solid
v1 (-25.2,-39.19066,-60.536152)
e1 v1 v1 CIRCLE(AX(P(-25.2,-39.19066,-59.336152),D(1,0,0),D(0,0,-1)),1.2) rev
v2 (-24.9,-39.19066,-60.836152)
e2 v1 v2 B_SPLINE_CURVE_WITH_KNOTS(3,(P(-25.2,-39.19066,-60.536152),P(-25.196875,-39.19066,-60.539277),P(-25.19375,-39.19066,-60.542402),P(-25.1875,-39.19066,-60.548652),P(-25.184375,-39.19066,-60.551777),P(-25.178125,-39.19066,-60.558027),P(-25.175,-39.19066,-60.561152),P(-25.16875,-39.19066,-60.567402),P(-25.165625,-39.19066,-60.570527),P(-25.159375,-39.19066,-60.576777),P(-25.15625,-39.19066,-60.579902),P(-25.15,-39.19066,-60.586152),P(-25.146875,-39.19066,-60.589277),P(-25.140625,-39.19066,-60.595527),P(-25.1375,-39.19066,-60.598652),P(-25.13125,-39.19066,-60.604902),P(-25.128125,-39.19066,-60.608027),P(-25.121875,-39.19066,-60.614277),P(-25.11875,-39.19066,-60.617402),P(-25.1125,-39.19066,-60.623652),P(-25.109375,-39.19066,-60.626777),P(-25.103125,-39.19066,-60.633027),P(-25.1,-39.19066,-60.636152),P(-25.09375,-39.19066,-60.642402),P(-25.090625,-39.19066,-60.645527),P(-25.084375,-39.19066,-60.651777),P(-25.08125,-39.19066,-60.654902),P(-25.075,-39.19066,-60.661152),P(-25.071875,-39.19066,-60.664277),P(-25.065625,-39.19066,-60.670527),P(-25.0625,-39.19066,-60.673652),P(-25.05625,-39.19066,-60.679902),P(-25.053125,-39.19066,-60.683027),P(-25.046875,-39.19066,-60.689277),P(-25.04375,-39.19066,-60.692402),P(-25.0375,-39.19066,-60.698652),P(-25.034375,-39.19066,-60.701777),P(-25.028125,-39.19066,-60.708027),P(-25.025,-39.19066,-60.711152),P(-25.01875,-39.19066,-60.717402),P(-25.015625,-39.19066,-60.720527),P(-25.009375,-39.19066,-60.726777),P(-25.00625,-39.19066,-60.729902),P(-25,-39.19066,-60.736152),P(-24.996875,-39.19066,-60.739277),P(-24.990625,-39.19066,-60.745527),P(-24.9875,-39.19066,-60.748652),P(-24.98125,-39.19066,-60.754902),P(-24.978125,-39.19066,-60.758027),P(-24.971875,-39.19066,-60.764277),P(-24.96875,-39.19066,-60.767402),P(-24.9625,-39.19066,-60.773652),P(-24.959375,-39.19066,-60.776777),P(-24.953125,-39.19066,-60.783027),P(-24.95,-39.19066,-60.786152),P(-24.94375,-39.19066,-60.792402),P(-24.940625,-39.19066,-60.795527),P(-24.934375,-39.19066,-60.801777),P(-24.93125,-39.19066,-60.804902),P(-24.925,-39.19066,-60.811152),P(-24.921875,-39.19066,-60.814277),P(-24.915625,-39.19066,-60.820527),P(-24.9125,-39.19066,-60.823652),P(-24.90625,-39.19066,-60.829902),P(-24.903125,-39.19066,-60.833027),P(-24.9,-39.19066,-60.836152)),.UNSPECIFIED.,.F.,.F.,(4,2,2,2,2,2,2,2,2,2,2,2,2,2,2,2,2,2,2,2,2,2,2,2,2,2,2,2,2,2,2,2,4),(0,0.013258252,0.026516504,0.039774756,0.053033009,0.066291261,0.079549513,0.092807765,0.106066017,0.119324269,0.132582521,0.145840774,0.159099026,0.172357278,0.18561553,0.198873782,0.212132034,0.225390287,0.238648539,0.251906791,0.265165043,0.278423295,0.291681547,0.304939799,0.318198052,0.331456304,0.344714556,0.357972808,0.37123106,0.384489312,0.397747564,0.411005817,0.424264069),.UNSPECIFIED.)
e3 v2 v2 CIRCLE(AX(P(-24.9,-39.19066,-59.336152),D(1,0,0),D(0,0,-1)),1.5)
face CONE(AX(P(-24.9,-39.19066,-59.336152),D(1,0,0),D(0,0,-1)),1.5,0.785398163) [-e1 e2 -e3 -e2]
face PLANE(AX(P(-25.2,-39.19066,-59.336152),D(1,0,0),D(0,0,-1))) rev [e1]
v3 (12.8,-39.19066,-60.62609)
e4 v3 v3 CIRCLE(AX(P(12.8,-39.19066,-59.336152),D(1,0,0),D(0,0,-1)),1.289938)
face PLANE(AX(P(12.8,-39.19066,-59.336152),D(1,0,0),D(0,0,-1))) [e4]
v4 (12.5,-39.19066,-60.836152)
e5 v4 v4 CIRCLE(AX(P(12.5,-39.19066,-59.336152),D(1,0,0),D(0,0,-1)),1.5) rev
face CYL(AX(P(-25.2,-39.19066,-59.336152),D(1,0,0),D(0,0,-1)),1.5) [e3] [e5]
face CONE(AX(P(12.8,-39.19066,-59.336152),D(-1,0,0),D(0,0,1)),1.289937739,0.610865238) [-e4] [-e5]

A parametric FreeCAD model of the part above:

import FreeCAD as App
import Part
import Sketcher
from FreeCAD import Vector


def edges_at(feature, points):
    """Names of the edges that pass closest to the given points."""
    edges = feature.Shape.Edges
    near = lambda p: min(range(len(edges)), key=lambda i: edges[i].distToShape(Part.Vertex(*p))[0])
    return sorted({f"Edge{near(p) + 1}" for p in points})

doc = App.newDocument("Part")
params = doc.addObject("Spreadsheet::Sheet", "Params")
for row, (alias, value) in enumerate([
    ("sketch1_diameter", "3 mm"),
    ("pad1_length", "38 mm"),
    ("chamfer_size", "0.3 mm"),
    ("chamfer_size2", "0.210062 mm"),
    ("chamfer2_size", "0.3 mm"),
], start=1):
    params.set(f"A{row}", alias)
    params.set(f"B{row}", "=" + value)
    params.setAlias(f"B{row}", alias)

body = doc.addObject("PartDesign::Body", "Body")

sketch1 = body.newObject("Sketcher::SketchObject", "Sketch")
sketch1.AttachmentSupport = (doc.getObject("YZ_Plane"), [""])
sketch1.MapMode = "FlatFace"
sketch1.AttachmentOffset = App.Placement(Vector(0, 0, 12.8), App.Rotation())
sketch1.addGeometry(Part.Circle(Vector(-39.19066, -59.336152, 0), Vector(0, 0, 1), 1.5), False)
sketch1.addConstraint([
    Sketcher.Constraint("Diameter", 0, 3.0),
    Sketcher.Constraint("DistanceX", 0, 3, -1, 1, 39.19066),
    Sketcher.Constraint("DistanceY", 0, 3, -1, 1, 59.336152),
])
sketch1.setExpression("Constraints[0]", "Params.sketch1_diameter")
pad1 = body.newObject("PartDesign::Pad", "Pad")
pad1.Profile = sketch1
pad1.setExpression("Length", "Params.pad1_length")
pad1.Reversed = True
doc.recompute()

chamfer = body.newObject("PartDesign::Chamfer", "Chamfer")
chamfer.Base = (pad1, edges_at(pad1, [(12.8, -39.191, -57.836)]))
chamfer.ChamferType = "Two distances"
chamfer.setExpression("Size", "Params.chamfer_size")
chamfer.setExpression("Size2", "Params.chamfer_size2")
doc.recompute()

chamfer2 = body.newObject("PartDesign::Chamfer", "Chamfer001")
chamfer2.Base = (chamfer, edges_at(chamfer, [(-25.2, -39.191, -57.836)]))
chamfer2.setExpression("Size", "Params.chamfer2_size")

doc.recompute()
